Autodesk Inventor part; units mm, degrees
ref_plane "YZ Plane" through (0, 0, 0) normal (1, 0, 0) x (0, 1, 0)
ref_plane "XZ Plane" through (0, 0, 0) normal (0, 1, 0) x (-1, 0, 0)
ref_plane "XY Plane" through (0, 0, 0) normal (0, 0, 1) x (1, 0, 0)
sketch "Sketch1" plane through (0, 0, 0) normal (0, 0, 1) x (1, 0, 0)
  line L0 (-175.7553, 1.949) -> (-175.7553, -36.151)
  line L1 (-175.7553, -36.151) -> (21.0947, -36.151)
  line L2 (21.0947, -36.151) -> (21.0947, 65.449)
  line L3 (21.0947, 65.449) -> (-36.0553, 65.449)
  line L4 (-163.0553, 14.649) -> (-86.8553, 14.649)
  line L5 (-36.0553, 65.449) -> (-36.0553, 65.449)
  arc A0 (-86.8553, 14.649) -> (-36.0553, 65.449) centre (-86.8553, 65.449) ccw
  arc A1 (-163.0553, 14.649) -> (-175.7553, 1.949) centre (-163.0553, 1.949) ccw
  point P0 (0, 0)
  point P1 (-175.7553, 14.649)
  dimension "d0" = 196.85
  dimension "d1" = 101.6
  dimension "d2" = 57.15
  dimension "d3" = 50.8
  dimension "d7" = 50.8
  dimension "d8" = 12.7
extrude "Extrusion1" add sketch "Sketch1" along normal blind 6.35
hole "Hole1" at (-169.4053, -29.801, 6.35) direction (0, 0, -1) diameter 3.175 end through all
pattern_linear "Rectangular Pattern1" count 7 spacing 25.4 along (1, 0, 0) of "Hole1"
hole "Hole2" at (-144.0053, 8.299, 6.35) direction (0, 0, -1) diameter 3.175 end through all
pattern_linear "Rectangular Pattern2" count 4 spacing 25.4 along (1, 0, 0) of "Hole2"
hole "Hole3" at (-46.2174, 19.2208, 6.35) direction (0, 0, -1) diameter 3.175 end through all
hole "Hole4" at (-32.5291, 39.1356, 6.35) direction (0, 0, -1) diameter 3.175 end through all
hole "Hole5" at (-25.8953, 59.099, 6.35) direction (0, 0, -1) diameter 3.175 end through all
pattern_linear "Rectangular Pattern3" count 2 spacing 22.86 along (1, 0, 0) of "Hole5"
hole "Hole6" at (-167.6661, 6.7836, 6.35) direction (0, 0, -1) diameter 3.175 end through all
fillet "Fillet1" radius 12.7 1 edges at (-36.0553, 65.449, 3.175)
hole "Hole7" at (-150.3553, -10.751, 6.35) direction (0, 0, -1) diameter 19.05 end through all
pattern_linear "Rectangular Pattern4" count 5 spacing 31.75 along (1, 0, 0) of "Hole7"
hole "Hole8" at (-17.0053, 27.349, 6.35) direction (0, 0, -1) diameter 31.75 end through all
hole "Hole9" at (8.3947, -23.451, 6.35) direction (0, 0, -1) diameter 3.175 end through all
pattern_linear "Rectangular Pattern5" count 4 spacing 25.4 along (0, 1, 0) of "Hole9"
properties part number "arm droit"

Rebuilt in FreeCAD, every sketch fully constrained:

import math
import FreeCAD as App
import Part
import Sketcher

V = App.Vector
Q = App.Units.Quantity


def edges_at(feature, points):
    """Names of the edges that pass closest to the given points."""
    edges = feature.Shape.Edges
    near = lambda p: min(range(len(edges)), key=lambda i: edges[i].distToShape(Part.Vertex(*p))[0])
    return sorted({f"Edge{near(p) + 1}" for p in points})

doc = App.newDocument("Part")
body = doc.addObject("PartDesign::Body", "Body")

sketch1 = body.newObject("Sketcher::SketchObject", "Sketch")
sketch1.AttachmentSupport = (doc.getObject("XY_Plane"), [""])
sketch1.MapMode = "FlatFace"
sketch1.addGeometry([
    Part.ArcOfCircle(Part.Circle(V(-163, 2, 0), V(0, 0, 1), 13), math.radians(90), math.radians(180)),
    Part.LineSegment(V(-176, 2, 0), V(-176, -36, 0)),
    Part.LineSegment(V(-176, -36, 0), V(21, -36, 0)),
    Part.LineSegment(V(21, -36, 0), V(21, 65, 0)),
    Part.LineSegment(V(21, 65, 0), V(-36, 65, 0)),
    Part.ArcOfCircle(Part.Circle(V(-87, 65, 0), V(0, 0, 1), 51), math.radians(-90), math.radians(0)),
    Part.LineSegment(V(-87, 15, 0), V(-163, 15, 0)),
], False)
sketch1.addConstraint([
    Sketcher.Constraint("Tangent", 0, 2, 1, 1),
    Sketcher.Constraint("Coincident", 1, 2, 2, 1),
    Sketcher.Constraint("Coincident", 2, 2, 3, 1),
    Sketcher.Constraint("Coincident", 3, 2, 4, 1),
    Sketcher.Constraint("Coincident", 4, 2, 5, 2),
    Sketcher.Constraint("Tangent", 5, 1, 6, 1),
    Sketcher.Constraint("Tangent", 6, 2, 0, 1),
    Sketcher.Constraint("Vertical", 1),
    Sketcher.Constraint("Horizontal", 2),
    Sketcher.Constraint("Vertical", 3),
    Sketcher.Constraint("Horizontal", 4),
    Sketcher.Constraint("Horizontal", 6),
    Sketcher.Constraint("Horizontal", 5, 3, 3, 2),
    Sketcher.Constraint("Radius", 5, Q("2 in")),
    Sketcher.Constraint("Radius", 0, Q("0.5 in")),
    Sketcher.Constraint("DistanceY", 3, 1, 3, 2, Q("4 in")),
    Sketcher.Constraint("DistanceX", 2, 1, 2, 2, Q("7.75 in")),
    Sketcher.Constraint("DistanceX", 4, 2, 4, 1, Q("2.25 in")),
    Sketcher.Constraint("DistanceX", 0, 3, -1, 1, Q("6.4195 in")),
    Sketcher.Constraint("DistanceY", -1, 1, 0, 3, Q("1.949 mm")),
])
pad1 = body.newObject("PartDesign::Pad", "Pad")
pad1.Profile = sketch1
pad1.Length = Q("0.25 in")

sketch2 = body.newObject("Sketcher::SketchObject", "Sketch001")
sketch2.AttachmentSupport = (doc.getObject("XY_Plane"), [""])
sketch2.MapMode = "FlatFace"
sketch2.AttachmentOffset = App.Placement(V(0, 0, 0.25 * 25.4), App.Rotation())
sketch2.addGeometry(Part.Circle(V(-169.4, -29.8, 0), V(0, 0, 1), 1.6), False)
sketch2.addConstraint([
    Sketcher.Constraint("Diameter", 0, Q("0.125 in")),
    Sketcher.Constraint("DistanceX", 0, 3, -1, 1, Q("6.6695 in")),
    Sketcher.Constraint("DistanceY", 0, 3, -1, 1, Q("29.801 mm")),
])
doc.recompute()
hole = body.newObject("PartDesign::Hole", "Hole")
hole.Profile = sketch2
hole.ThreadType = "None"
hole.Diameter = Q("0.125 in")
hole.DepthType = "ThroughAll"
doc.recompute()

linearpattern = body.newObject("PartDesign::LinearPattern", "LinearPattern")
linearpattern.Originals = [hole]
linearpattern.Direction = (doc.getObject("X_Axis"), [""])
linearpattern.Mode = "offset"
linearpattern.Offset = Q("1 in")
linearpattern.Occurrences = 7
body.Tip = linearpattern

sketch3 = body.newObject("Sketcher::SketchObject", "Sketch002")
sketch3.AttachmentSupport = (doc.getObject("XY_Plane"), [""])
sketch3.MapMode = "FlatFace"
sketch3.AttachmentOffset = App.Placement(V(0, 0, 0.25 * 25.4), App.Rotation())
sketch3.addGeometry(Part.Circle(V(-144, 8.3, 0), V(0, 0, 1), 1.6), False)
sketch3.addConstraint([
    Sketcher.Constraint("Diameter", 0, Q("0.125 in")),
    Sketcher.Constraint("DistanceX", 0, 3, -1, 1, Q("5.6695 in")),
    Sketcher.Constraint("DistanceY", -1, 1, 0, 3, Q("8.299 mm")),
])
doc.recompute()
hole2 = body.newObject("PartDesign::Hole", "Hole001")
hole2.Profile = sketch3
hole2.ThreadType = "None"
hole2.Diameter = Q("0.125 in")
hole2.DepthType = "ThroughAll"
doc.recompute()

linearpattern2 = body.newObject("PartDesign::LinearPattern", "LinearPattern001")
linearpattern2.Originals = [hole2]
linearpattern2.Direction = (doc.getObject("X_Axis"), [""])
linearpattern2.Mode = "offset"
linearpattern2.Offset = Q("1 in")
linearpattern2.Occurrences = 4
body.Tip = linearpattern2

sketch4 = body.newObject("Sketcher::SketchObject", "Sketch003")
sketch4.AttachmentSupport = (doc.getObject("XY_Plane"), [""])
sketch4.MapMode = "FlatFace"
sketch4.AttachmentOffset = App.Placement(V(0, 0, 0.25 * 25.4), App.Rotation())
sketch4.addGeometry(Part.Circle(V(-46.2, 19.2, 0), V(0, 0, 1), 1.6), False)
sketch4.addConstraint([
    Sketcher.Constraint("Diameter", 0, Q("0.125 in")),
    Sketcher.Constraint("DistanceX", 0, 3, -1, 1, Q("46.2174 mm")),
    Sketcher.Constraint("DistanceY", -1, 1, 0, 3, Q("19.2208 mm")),
])
doc.recompute()
hole3 = body.newObject("PartDesign::Hole", "Hole002")
hole3.Profile = sketch4
hole3.ThreadType = "None"
hole3.Diameter = Q("0.125 in")
hole3.DepthType = "ThroughAll"

sketch5 = body.newObject("Sketcher::SketchObject", "Sketch004")
sketch5.AttachmentSupport = (doc.getObject("XY_Plane"), [""])
sketch5.MapMode = "FlatFace"
sketch5.AttachmentOffset = App.Placement(V(0, 0, 0.25 * 25.4), App.Rotation())
sketch5.addGeometry(Part.Circle(V(-32.5, 39.1, 0), V(0, 0, 1), 1.6), False)
sketch5.addConstraint([
    Sketcher.Constraint("Diameter", 0, Q("0.125 in")),
    Sketcher.Constraint("DistanceX", 0, 3, -1, 1, Q("32.529 mm")),
    Sketcher.Constraint("DistanceY", -1, 1, 0, 3, Q("39.1356 mm")),
])
doc.recompute()
hole4 = body.newObject("PartDesign::Hole", "Hole003")
hole4.Profile = sketch5
hole4.ThreadType = "None"
hole4.Diameter = Q("0.125 in")
hole4.DepthType = "ThroughAll"

sketch6 = body.newObject("Sketcher::SketchObject", "Sketch005")
sketch6.AttachmentSupport = (doc.getObject("XY_Plane"), [""])
sketch6.MapMode = "FlatFace"
sketch6.AttachmentOffset = App.Placement(V(0, 0, 0.25 * 25.4), App.Rotation())
sketch6.addGeometry(Part.Circle(V(-25.9, 59.1, 0), V(0, 0, 1), 1.6), False)
sketch6.addConstraint([
    Sketcher.Constraint("Diameter", 0, Q("0.125 in")),
    Sketcher.Constraint("DistanceX", 0, 3, -1, 1, Q("1.0195 in")),
    Sketcher.Constraint("DistanceY", -1, 1, 0, 3, Q("59.099 mm")),
])
doc.recompute()
hole5 = body.newObject("PartDesign::Hole", "Hole004")
hole5.Profile = sketch6
hole5.ThreadType = "None"
hole5.Diameter = Q("0.125 in")
hole5.DepthType = "ThroughAll"
doc.recompute()

linearpattern3 = body.newObject("PartDesign::LinearPattern", "LinearPattern002")
linearpattern3.Originals = [hole5]
linearpattern3.Direction = (doc.getObject("X_Axis"), [""])
linearpattern3.Mode = "offset"
linearpattern3.Offset = Q("0.9 in")
linearpattern3.Occurrences = 2
body.Tip = linearpattern3

sketch7 = body.newObject("Sketcher::SketchObject", "Sketch006")
sketch7.AttachmentSupport = (doc.getObject("XY_Plane"), [""])
sketch7.MapMode = "FlatFace"
sketch7.AttachmentOffset = App.Placement(V(0, 0, 0.25 * 25.4), App.Rotation())
sketch7.addGeometry(Part.Circle(V(-167.7, 6.8, 0), V(0, 0, 1), 1.6), False)
sketch7.addConstraint([
    Sketcher.Constraint("Diameter", 0, Q("0.125 in")),
    Sketcher.Constraint("DistanceX", 0, 3, -1, 1, Q("167.666 mm")),
    Sketcher.Constraint("DistanceY", -1, 1, 0, 3, Q("6.7836 mm")),
])
doc.recompute()
hole6 = body.newObject("PartDesign::Hole", "Hole005")
hole6.Profile = sketch7
hole6.ThreadType = "None"
hole6.Diameter = Q("0.125 in")
hole6.DepthType = "ThroughAll"
doc.recompute()

fillet = body.newObject("PartDesign::Fillet", "Fillet")
fillet.Base = (hole6, edges_at(hole6, [(-36.055, 65.449, 3.175)]))
fillet.Radius = Q("0.5 in")

sketch8 = body.newObject("Sketcher::SketchObject", "Sketch007")
sketch8.AttachmentSupport = (doc.getObject("XY_Plane"), [""])
sketch8.MapMode = "FlatFace"
sketch8.AttachmentOffset = App.Placement(V(0, 0, 0.25 * 25.4), App.Rotation())
sketch8.addGeometry(Part.Circle(V(-150, -11, 0), V(0, 0, 1), 10), False)
sketch8.addConstraint([
    Sketcher.Constraint("Diameter", 0, Q("0.75 in")),
    Sketcher.Constraint("DistanceX", 0, 3, -1, 1, Q("5.9195 in")),
    Sketcher.Constraint("DistanceY", 0, 3, -1, 1, Q("10.751 mm")),
])
doc.recompute()
hole7 = body.newObject("PartDesign::Hole", "Hole006")
hole7.Profile = sketch8
hole7.ThreadType = "None"
hole7.Diameter = Q("0.75 in")
hole7.DepthType = "ThroughAll"
doc.recompute()

linearpattern4 = body.newObject("PartDesign::LinearPattern", "LinearPattern003")
linearpattern4.Originals = [hole7]
linearpattern4.Direction = (doc.getObject("X_Axis"), [""])
linearpattern4.Mode = "offset"
linearpattern4.Offset = Q("1.25 in")
linearpattern4.Occurrences = 5
body.Tip = linearpattern4

sketch9 = body.newObject("Sketcher::SketchObject", "Sketch008")
sketch9.AttachmentSupport = (doc.getObject("XY_Plane"), [""])
sketch9.MapMode = "FlatFace"
sketch9.AttachmentOffset = App.Placement(V(0, 0, 0.25 * 25.4), App.Rotation())
sketch9.addGeometry(Part.Circle(V(-17, 27, 0), V(0, 0, 1), 16), False)
sketch9.addConstraint([
    Sketcher.Constraint("Diameter", 0, Q("1.25 in")),
    Sketcher.Constraint("DistanceX", 0, 3, -1, 1, Q("0.6695 in")),
    Sketcher.Constraint("DistanceY", -1, 1, 0, 3, Q("27.349 mm")),
])
doc.recompute()
hole8 = body.newObject("PartDesign::Hole", "Hole007")
hole8.Profile = sketch9
hole8.ThreadType = "None"
hole8.Diameter = Q("1.25 in")
hole8.DepthType = "ThroughAll"

sketch10 = body.newObject("Sketcher::SketchObject", "Sketch009")
sketch10.AttachmentSupport = (doc.getObject("XY_Plane"), [""])
sketch10.MapMode = "FlatFace"
sketch10.AttachmentOffset = App.Placement(V(0, 0, 0.25 * 25.4), App.Rotation())
sketch10.addGeometry(Part.Circle(V(8.4, -23.5, 0), V(0, 0, 1), 1.6), False)
sketch10.addConstraint([
    Sketcher.Constraint("Diameter", 0, Q("0.125 in")),
    Sketcher.Constraint("DistanceX", -1, 1, 0, 3, Q("0.3305 in")),
    Sketcher.Constraint("DistanceY", 0, 3, -1, 1, Q("23.451 mm")),
])
doc.recompute()
hole9 = body.newObject("PartDesign::Hole", "Hole008")
hole9.Profile = sketch10
hole9.ThreadType = "None"
hole9.Diameter = Q("0.125 in")
hole9.DepthType = "ThroughAll"
doc.recompute()

linearpattern5 = body.newObject("PartDesign::LinearPattern", "LinearPattern004")
linearpattern5.Originals = [hole9]
linearpattern5.Direction = (doc.getObject("Y_Axis"), [""])
linearpattern5.Mode = "offset"
linearpattern5.Offset = Q("1 in")
linearpattern5.Occurrences = 4
body.Tip = linearpattern5

doc.recompute()
